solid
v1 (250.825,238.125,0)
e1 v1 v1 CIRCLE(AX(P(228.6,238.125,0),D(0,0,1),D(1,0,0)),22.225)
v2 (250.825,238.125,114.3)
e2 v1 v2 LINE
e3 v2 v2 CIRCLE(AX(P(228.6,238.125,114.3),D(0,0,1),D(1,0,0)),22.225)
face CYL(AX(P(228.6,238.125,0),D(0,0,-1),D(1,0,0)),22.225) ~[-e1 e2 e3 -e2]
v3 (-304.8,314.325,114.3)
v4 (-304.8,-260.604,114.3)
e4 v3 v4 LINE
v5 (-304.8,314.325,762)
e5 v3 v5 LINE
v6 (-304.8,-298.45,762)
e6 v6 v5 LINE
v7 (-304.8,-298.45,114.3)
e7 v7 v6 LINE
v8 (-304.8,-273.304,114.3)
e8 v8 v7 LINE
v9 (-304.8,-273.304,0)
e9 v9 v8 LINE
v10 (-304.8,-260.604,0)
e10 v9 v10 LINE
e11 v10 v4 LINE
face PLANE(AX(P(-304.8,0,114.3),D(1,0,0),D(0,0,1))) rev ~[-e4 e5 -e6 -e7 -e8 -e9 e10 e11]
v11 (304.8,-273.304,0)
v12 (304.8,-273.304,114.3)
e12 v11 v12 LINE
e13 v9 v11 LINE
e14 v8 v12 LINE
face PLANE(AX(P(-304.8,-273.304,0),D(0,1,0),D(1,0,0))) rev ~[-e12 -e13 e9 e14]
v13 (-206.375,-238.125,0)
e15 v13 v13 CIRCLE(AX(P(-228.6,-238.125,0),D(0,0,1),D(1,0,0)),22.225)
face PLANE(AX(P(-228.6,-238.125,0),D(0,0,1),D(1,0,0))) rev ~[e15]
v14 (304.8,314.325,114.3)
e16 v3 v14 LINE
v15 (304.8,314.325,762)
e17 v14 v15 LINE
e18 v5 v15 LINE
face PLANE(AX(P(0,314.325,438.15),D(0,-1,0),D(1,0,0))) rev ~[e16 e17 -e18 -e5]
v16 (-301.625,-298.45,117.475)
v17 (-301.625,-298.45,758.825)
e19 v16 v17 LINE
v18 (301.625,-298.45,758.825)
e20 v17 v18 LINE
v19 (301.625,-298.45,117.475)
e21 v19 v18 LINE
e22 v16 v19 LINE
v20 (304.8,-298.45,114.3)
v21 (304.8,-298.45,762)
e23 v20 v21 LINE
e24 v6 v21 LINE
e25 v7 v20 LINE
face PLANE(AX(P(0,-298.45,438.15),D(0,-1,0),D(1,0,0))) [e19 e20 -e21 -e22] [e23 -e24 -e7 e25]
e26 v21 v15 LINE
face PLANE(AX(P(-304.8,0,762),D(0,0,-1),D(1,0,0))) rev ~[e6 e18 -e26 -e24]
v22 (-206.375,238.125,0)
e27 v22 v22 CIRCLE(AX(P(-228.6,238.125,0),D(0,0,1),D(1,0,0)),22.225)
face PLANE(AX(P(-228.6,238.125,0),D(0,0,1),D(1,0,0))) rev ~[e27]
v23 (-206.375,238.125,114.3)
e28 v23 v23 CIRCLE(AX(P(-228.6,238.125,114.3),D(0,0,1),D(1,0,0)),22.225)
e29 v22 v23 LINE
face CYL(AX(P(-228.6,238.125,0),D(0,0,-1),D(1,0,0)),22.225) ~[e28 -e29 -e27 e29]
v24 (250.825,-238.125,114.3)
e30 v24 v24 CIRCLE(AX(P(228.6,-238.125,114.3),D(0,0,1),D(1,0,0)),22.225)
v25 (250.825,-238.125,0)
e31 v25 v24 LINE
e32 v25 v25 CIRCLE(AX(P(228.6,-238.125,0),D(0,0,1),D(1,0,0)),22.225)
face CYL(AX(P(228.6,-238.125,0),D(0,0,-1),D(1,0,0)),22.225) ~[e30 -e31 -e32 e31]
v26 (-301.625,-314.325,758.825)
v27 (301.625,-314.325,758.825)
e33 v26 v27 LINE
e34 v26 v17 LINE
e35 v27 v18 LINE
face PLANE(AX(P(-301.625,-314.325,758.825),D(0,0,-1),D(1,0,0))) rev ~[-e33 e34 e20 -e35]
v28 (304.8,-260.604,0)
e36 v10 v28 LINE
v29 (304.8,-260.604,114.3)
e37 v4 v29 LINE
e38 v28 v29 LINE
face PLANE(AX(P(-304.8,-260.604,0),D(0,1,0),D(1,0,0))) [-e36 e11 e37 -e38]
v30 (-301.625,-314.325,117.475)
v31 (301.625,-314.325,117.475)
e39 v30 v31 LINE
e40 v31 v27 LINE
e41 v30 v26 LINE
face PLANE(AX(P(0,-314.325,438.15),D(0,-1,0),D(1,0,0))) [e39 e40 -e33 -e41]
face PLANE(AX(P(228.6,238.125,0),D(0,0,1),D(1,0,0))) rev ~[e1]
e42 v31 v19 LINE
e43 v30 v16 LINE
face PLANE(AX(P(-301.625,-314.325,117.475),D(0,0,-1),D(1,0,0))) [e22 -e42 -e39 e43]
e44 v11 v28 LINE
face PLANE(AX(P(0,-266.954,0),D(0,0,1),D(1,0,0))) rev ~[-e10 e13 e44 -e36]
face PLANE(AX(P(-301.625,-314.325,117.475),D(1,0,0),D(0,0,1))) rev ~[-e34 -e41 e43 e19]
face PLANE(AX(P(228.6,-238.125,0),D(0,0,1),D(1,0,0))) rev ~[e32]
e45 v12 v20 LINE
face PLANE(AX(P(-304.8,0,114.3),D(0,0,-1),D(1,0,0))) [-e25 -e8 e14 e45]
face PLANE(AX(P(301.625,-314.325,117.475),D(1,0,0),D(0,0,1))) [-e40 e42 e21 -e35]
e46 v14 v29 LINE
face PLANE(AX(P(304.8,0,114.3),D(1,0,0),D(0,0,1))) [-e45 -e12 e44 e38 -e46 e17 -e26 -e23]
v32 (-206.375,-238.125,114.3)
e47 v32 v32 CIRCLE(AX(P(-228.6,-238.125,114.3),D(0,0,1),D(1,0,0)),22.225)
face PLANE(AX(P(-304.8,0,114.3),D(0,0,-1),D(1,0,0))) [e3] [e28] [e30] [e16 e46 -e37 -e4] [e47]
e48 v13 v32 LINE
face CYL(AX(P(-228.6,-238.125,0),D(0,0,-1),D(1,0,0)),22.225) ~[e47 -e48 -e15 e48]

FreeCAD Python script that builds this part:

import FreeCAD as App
import Part
import Sketcher

V = App.Vector
Q = App.Units.Quantity

doc = App.newDocument("Part")
body = doc.addObject("PartDesign::Body", "Body")

sketch1 = doc.addObject("Sketcher::SketchObject", "Sketch")
body.addObject(sketch1)
sketch1.AttachmentSupport = (doc.XZ_Plane, [""])
sketch1.MapMode = "FlatFace"
sketch1.addGeometry(Part.LineSegment(V(-305, 762, 0), V(-305, 114, 0)), False)
sketch1.addGeometry(Part.LineSegment(V(-305, 114, 0), V(305, 114, 0)), False)
sketch1.addGeometry(Part.LineSegment(V(305, 114, 0), V(305, 762, 0)), False)
sketch1.addGeometry(Part.LineSegment(V(305, 762, 0), V(-305, 762, 0)), False)
sketch1.addConstraint(Sketcher.Constraint("Coincident", 0, 2, 1, 1))
sketch1.addConstraint(Sketcher.Constraint("Coincident", 1, 2, 2, 1))
sketch1.addConstraint(Sketcher.Constraint("Coincident", 2, 2, 3, 1))
sketch1.addConstraint(Sketcher.Constraint("Coincident", 3, 2, 0, 1))
sketch1.addConstraint(Sketcher.Constraint("Vertical", 0))
sketch1.addConstraint(Sketcher.Constraint("Horizontal", 1))
sketch1.addConstraint(Sketcher.Constraint("Vertical", 2))
sketch1.addConstraint(Sketcher.Constraint("Horizontal", 3))
sketch1.addConstraint(Sketcher.Constraint("DistanceX", 1, 1, 1, 2, Q("24 in")))
sketch1.addConstraint(Sketcher.Constraint("DistanceY", 0, 2, 0, 1, Q("25.5 in")))
sketch1.addConstraint(Sketcher.Constraint("DistanceX", 0, 2, -1, 1, Q("12 in")))
sketch1.addConstraint(Sketcher.Constraint("DistanceY", -1, 1, 2, 2, Q("30 in")))
pad1 = doc.addObject("PartDesign::Pad", "Pad")
body.addObject(pad1)
pad1.Profile = sketch1
pad1.Length = Q("24.75 in")
pad1.Midplane = True

sketch2 = doc.addObject("Sketcher::SketchObject", "Sketch001")
body.addObject(sketch2)
sketch2.AttachmentSupport = (doc.XY_Plane, [""])
sketch2.MapMode = "FlatFace"
sketch2.addGeometry(Part.Circle(V(-229, -238, 0), V(0, 0, 1), 22), False)
sketch2.addGeometry(Part.Circle(V(229, -238, 0), V(0, 0, 1), 22), False)
sketch2.addGeometry(Part.Circle(V(229, 238, 0), V(0, 0, 1), 22), False)
sketch2.addGeometry(Part.Circle(V(-229, 238, 0), V(0, 0, 1), 22), False)
sketch2.addConstraint(Sketcher.Constraint("Equal", 0, 1))
sketch2.addConstraint(Sketcher.Constraint("Equal", 1, 2))
sketch2.addConstraint(Sketcher.Constraint("Equal", 2, 3))
sketch2.addConstraint(Sketcher.Constraint("Symmetric", 0, 3, 2, 3, -1, 1))
sketch2.addConstraint(Sketcher.Constraint("Symmetric", 1, 3, 3, 3, -1, 1))
sketch2.addConstraint(Sketcher.Constraint("Symmetric", 0, 3, 1, 3, -2))
sketch2.addConstraint(Sketcher.Constraint("Diameter", 0, Q("1.75 in")))
sketch2.addConstraint(Sketcher.Constraint("DistanceX", 0, 3, -1, 1, Q("9 in")))
sketch2.addConstraint(Sketcher.Constraint("DistanceY", 1, 3, 2, 3, Q("18.75 in")))
pad2 = doc.addObject("PartDesign::Pad", "Pad001")
body.addObject(pad2)
pad2.Profile = sketch2
pad2.Length = Q("4.5 in")

sketch3 = doc.addObject("Sketcher::SketchObject", "Sketch002")
body.addObject(sketch3)
sketch3.AttachmentSupport = (doc.XY_Plane, [""])
sketch3.MapMode = "FlatFace"
sketch3.addGeometry(Part.LineSegment(V(-305, -261, 0), V(-305, -273, 0)), False)
sketch3.addGeometry(Part.LineSegment(V(-305, -273, 0), V(305, -273, 0)), False)
sketch3.addGeometry(Part.LineSegment(V(305, -273, 0), V(305, -261, 0)), False)
sketch3.addGeometry(Part.LineSegment(V(305, -261, 0), V(-305, -261, 0)), False)
sketch3.addConstraint(Sketcher.Constraint("Coincident", 0, 2, 1, 1))
sketch3.addConstraint(Sketcher.Constraint("Coincident", 1, 2, 2, 1))
sketch3.addConstraint(Sketcher.Constraint("Coincident", 2, 2, 3, 1))
sketch3.addConstraint(Sketcher.Constraint("Coincident", 3, 2, 0, 1))
sketch3.addConstraint(Sketcher.Constraint("Vertical", 0))
sketch3.addConstraint(Sketcher.Constraint("Horizontal", 1))
sketch3.addConstraint(Sketcher.Constraint("Vertical", 2))
sketch3.addConstraint(Sketcher.Constraint("Horizontal", 3))
sketch3.addConstraint(Sketcher.Constraint("DistanceX", 1, 1, 1, 2, Q("24 in")))
sketch3.addConstraint(Sketcher.Constraint("DistanceY", 0, 2, 0, 1, Q("0.5 in")))
sketch3.addConstraint(Sketcher.Constraint("DistanceX", 0, 2, -1, 1, Q("12 in")))
sketch3.addConstraint(Sketcher.Constraint("DistanceY", 0, 2, -1, 1, Q("10.76 in")))
pad3 = doc.addObject("PartDesign::Pad", "Pad002")
body.addObject(pad3)
pad3.Profile = sketch3
pad3.Type = "UpToLast"

sketch4 = doc.addObject("Sketcher::SketchObject", "Sketch003")
body.addObject(sketch4)
sketch4.AttachmentSupport = (doc.XZ_Plane, [""])
sketch4.MapMode = "FlatFace"
sketch4.AttachmentOffset = App.Placement(V(0, 0, 12.375 * 25.4), App.Rotation())
sketch4.addGeometry(Part.LineSegment(V(-305, 762, 0), V(-305, 114, 0)), False)
sketch4.addGeometry(Part.LineSegment(V(-305, 114, 0), V(305, 114, 0)), False)
sketch4.addGeometry(Part.LineSegment(V(305, 114, 0), V(305, 762, 0)), False)
sketch4.addGeometry(Part.LineSegment(V(305, 762, 0), V(-305, 762, 0)), False)
sketch4.addGeometry(Part.LineSegment(V(302, 117, 0), V(-302, 117, 0)), False)
sketch4.addGeometry(Part.LineSegment(V(-302, 117, 0), V(-302, 759, 0)), False)
sketch4.addGeometry(Part.LineSegment(V(-302, 759, 0), V(302, 759, 0)), False)
sketch4.addGeometry(Part.LineSegment(V(302, 759, 0), V(302, 117, 0)), False)
sketch4.addConstraint(Sketcher.Constraint("Coincident", 0, 2, 1, 1))
sketch4.addConstraint(Sketcher.Constraint("Coincident", 1, 2, 2, 1))
sketch4.addConstraint(Sketcher.Constraint("Coincident", 2, 2, 3, 1))
sketch4.addConstraint(Sketcher.Constraint("Coincident", 3, 2, 0, 1))
sketch4.addConstraint(Sketcher.Constraint("Coincident", 4, 2, 5, 1))
sketch4.addConstraint(Sketcher.Constraint("Coincident", 5, 2, 6, 1))
sketch4.addConstraint(Sketcher.Constraint("Coincident", 6, 2, 7, 1))
sketch4.addConstraint(Sketcher.Constraint("Coincident", 7, 2, 4, 1))
sketch4.addConstraint(Sketcher.Constraint("Vertical", 0))
sketch4.addConstraint(Sketcher.Constraint("Horizontal", 1))
sketch4.addConstraint(Sketcher.Constraint("Vertical", 2))
sketch4.addConstraint(Sketcher.Constraint("Horizontal", 3))
sketch4.addConstraint(Sketcher.Constraint("Horizontal", 4))
sketch4.addConstraint(Sketcher.Constraint("Vertical", 5))
sketch4.addConstraint(Sketcher.Constraint("Horizontal", 6))
sketch4.addConstraint(Sketcher.Constraint("Vertical", 7))
sketch4.addConstraint(Sketcher.Constraint("DistanceX", 1, 1, 1, 2, Q("24 in")))
sketch4.addConstraint(Sketcher.Constraint("DistanceY", 0, 2, 0, 1, Q("25.5 in")))
sketch4.addConstraint(Sketcher.Constraint("DistanceX", 0, 2, -1, 1, Q("12 in")))
sketch4.addConstraint(Sketcher.Constraint("DistanceY", -1, 1, 2, 2, Q("30 in")))
sketch4.addConstraint(Sketcher.Constraint("DistanceX", 4, 2, 4, 1, Q("23.75 in")))
sketch4.addConstraint(Sketcher.Constraint("DistanceY", 5, 1, 5, 2, Q("25.25 in")))
sketch4.addConstraint(Sketcher.Constraint("DistanceX", 4, 2, -1, 1, Q("11.875 in")))
sketch4.addConstraint(Sketcher.Constraint("DistanceY", -1, 1, 4, 2, Q("4.625 in")))
pocket1 = doc.addObject("PartDesign::Pocket", "Pocket")
body.addObject(pocket1)
pocket1.Profile = sketch4
pocket1.Length = Q("0.625 in")

doc.recompute()
